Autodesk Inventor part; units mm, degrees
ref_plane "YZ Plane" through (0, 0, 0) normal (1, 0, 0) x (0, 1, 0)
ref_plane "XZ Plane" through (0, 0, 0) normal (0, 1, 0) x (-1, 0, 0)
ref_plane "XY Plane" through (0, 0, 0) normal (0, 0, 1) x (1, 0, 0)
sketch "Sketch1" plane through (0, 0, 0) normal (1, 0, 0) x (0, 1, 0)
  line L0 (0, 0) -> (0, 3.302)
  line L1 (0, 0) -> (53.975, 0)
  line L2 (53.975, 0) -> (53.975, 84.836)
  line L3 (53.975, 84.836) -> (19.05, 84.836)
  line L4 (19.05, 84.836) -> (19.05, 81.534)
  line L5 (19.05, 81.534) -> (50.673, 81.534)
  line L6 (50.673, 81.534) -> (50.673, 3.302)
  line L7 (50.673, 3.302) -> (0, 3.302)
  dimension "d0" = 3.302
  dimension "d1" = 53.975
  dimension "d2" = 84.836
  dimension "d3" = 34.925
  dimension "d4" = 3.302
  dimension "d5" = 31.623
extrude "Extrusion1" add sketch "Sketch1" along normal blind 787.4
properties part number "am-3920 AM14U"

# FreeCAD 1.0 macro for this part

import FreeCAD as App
import Part
import Sketcher
from FreeCAD import Vector
Q = App.Units.Quantity

doc = App.newDocument("Part")
body = doc.addObject("PartDesign::Body", "Body")

# Sketch on YZ plane
sketch1 = doc.addObject("Sketcher::SketchObject", "Sketch")
body.addObject(sketch1)
sketch1.AttachmentSupport = (doc.YZ_Plane, [""])
sketch1.MapMode = "FlatFace"
sketch1.addGeometry(Part.LineSegment(Vector(0, 3.3, 0), Vector(0, 0, 0)), False)
sketch1.addGeometry(Part.LineSegment(Vector(0, 0, 0), Vector(54, 0, 0)), False)
sketch1.addGeometry(Part.LineSegment(Vector(54, 0, 0), Vector(54, 84.8, 0)), False)
sketch1.addGeometry(Part.LineSegment(Vector(54, 84.8, 0), Vector(19.1, 84.8, 0)), False)
sketch1.addGeometry(Part.LineSegment(Vector(19.1, 84.8, 0), Vector(19.1, 81.5, 0)), False)
sketch1.addGeometry(Part.LineSegment(Vector(19.1, 81.5, 0), Vector(50.7, 81.5, 0)), False)
sketch1.addGeometry(Part.LineSegment(Vector(50.7, 81.5, 0), Vector(50.7, 3.3, 0)), False)
sketch1.addGeometry(Part.LineSegment(Vector(50.7, 3.3, 0), Vector(0, 3.3, 0)), False)
sketch1.addConstraint(Sketcher.Constraint("Coincident", 0, 2, 1, 1))
sketch1.addConstraint(Sketcher.Constraint("Coincident", 1, 2, 2, 1))
sketch1.addConstraint(Sketcher.Constraint("Coincident", 2, 2, 3, 1))
sketch1.addConstraint(Sketcher.Constraint("Coincident", 3, 2, 4, 1))
sketch1.addConstraint(Sketcher.Constraint("Coincident", 4, 2, 5, 1))
sketch1.addConstraint(Sketcher.Constraint("Coincident", 5, 2, 6, 1))
sketch1.addConstraint(Sketcher.Constraint("Coincident", 6, 2, 7, 1))
sketch1.addConstraint(Sketcher.Constraint("Coincident", 7, 2, 0, 1))
sketch1.addConstraint(Sketcher.Constraint("Vertical", 0))
sketch1.addConstraint(Sketcher.Constraint("Horizontal", 1))
sketch1.addConstraint(Sketcher.Constraint("Vertical", 2))
sketch1.addConstraint(Sketcher.Constraint("Horizontal", 3))
sketch1.addConstraint(Sketcher.Constraint("Vertical", 4))
sketch1.addConstraint(Sketcher.Constraint("Horizontal", 5))
sketch1.addConstraint(Sketcher.Constraint("Vertical", 6))
sketch1.addConstraint(Sketcher.Constraint("Horizontal", 7))
sketch1.addConstraint(Sketcher.Constraint("Coincident", 0, 2, -1, 1))
sketch1.addConstraint(Sketcher.Constraint("Equal", 0, 4))
sketch1.addConstraint(Sketcher.Constraint("DistanceY", 0, 2, 0, 1, Q("0.13 in")))
sketch1.addConstraint(Sketcher.Constraint("DistanceY", 2, 1, 2, 2, Q("3.34 in")))
sketch1.addConstraint(Sketcher.Constraint("DistanceX", 1, 1, 1, 2, Q("2.125 in")))
sketch1.addConstraint(Sketcher.Constraint("DistanceX", 3, 2, 3, 1, Q("1.375 in")))
sketch1.addConstraint(Sketcher.Constraint("DistanceX", 5, 1, 5, 2, Q("1.245 in")))
pad1 = doc.addObject("PartDesign::Pad", "Pad")
body.addObject(pad1)
pad1.Profile = sketch1
pad1.Length = Q("31 in")

doc.recompute()
